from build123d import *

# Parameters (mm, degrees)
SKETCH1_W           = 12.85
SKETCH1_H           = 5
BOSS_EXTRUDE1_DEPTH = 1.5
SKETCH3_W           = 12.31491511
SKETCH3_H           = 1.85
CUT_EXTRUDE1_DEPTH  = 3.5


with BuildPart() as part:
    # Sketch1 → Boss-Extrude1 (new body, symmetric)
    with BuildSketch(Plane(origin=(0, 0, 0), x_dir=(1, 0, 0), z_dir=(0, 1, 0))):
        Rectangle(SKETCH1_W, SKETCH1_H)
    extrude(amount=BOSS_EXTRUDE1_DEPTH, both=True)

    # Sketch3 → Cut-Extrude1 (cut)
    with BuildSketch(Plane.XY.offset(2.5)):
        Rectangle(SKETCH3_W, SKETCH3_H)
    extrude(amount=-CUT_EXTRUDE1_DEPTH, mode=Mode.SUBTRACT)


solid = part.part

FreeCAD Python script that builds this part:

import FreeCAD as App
import Part
import Sketcher

V = App.Vector


def add_polygon(sketch, points):
    """Adds a closed chain of lines whose ends are joined by coincident constraints."""
    first, n = sketch.GeometryCount, len(points)
    for a, b in zip(points, points[1:] + points[:1]):
        sketch.addGeometry(Part.LineSegment(App.Vector(*a, 0), App.Vector(*b, 0)), False)
    for i in range(n):
        sketch.addConstraint(Sketcher.Constraint("Coincident", first + i, 2, first + (i + 1) % n, 1))

doc = App.newDocument("Part")
body = doc.addObject("PartDesign::Body", "Body")

# Sketch on XZ plane
sketch1 = body.newObject("Sketcher::SketchObject", "Sketch")
sketch1.AttachmentSupport = (doc.getObject("XZ_Plane"), [""])
sketch1.MapMode = "FlatFace"
add_polygon(sketch1, [(-6, -2), (-6, 2), (6, 2), (6, -2)])  # lines 0-3
sketch1.addConstraint(Sketcher.Constraint("Vertical", 0))
sketch1.addConstraint(Sketcher.Constraint("Horizontal", 1))
sketch1.addConstraint(Sketcher.Constraint("Vertical", 2))
sketch1.addConstraint(Sketcher.Constraint("Horizontal", 3))
sketch1.addConstraint(Sketcher.Constraint("Symmetric", 0, 2, 2, 2, -1, 1))
sketch1.addConstraint(Sketcher.Constraint("DistanceY", 0, 1, 0, 2, 5.0))
sketch1.addConstraint(Sketcher.Constraint("DistanceX", 1, 1, 1, 2, 12.85))
pad1 = body.newObject("PartDesign::Pad", "Pad")
pad1.Profile = sketch1
pad1.Length = 3
pad1.Midplane = True

# Sketch on XY plane
sketch2 = body.newObject("Sketcher::SketchObject", "Sketch001")
sketch2.AttachmentSupport = (doc.getObject("XY_Plane"), [""])
sketch2.MapMode = "FlatFace"
sketch2.AttachmentOffset = App.Placement(V(0, 0, 2.5), App.Rotation())
add_polygon(sketch2, [(-6.2, 0.9), (-6.2, -0.9), (6.2, -0.9), (6.2, 0.9)])  # lines 0-3
sketch2.addConstraint(Sketcher.Constraint("Vertical", 0))
sketch2.addConstraint(Sketcher.Constraint("Horizontal", 1))
sketch2.addConstraint(Sketcher.Constraint("Vertical", 2))
sketch2.addConstraint(Sketcher.Constraint("Horizontal", 3))
sketch2.addConstraint(Sketcher.Constraint("Symmetric", 0, 2, 2, 2, -1, 1))
sketch2.addConstraint(Sketcher.Constraint("DistanceY", 0, 2, 0, 1, 1.85))
sketch2.addConstraint(Sketcher.Constraint("DistanceX", 1, 1, 1, 2, 12.314915))
pocket1 = body.newObject("PartDesign::Pocket", "Pocket")
pocket1.Profile = sketch2
pocket1.Length = 3.5

doc.recompute()
